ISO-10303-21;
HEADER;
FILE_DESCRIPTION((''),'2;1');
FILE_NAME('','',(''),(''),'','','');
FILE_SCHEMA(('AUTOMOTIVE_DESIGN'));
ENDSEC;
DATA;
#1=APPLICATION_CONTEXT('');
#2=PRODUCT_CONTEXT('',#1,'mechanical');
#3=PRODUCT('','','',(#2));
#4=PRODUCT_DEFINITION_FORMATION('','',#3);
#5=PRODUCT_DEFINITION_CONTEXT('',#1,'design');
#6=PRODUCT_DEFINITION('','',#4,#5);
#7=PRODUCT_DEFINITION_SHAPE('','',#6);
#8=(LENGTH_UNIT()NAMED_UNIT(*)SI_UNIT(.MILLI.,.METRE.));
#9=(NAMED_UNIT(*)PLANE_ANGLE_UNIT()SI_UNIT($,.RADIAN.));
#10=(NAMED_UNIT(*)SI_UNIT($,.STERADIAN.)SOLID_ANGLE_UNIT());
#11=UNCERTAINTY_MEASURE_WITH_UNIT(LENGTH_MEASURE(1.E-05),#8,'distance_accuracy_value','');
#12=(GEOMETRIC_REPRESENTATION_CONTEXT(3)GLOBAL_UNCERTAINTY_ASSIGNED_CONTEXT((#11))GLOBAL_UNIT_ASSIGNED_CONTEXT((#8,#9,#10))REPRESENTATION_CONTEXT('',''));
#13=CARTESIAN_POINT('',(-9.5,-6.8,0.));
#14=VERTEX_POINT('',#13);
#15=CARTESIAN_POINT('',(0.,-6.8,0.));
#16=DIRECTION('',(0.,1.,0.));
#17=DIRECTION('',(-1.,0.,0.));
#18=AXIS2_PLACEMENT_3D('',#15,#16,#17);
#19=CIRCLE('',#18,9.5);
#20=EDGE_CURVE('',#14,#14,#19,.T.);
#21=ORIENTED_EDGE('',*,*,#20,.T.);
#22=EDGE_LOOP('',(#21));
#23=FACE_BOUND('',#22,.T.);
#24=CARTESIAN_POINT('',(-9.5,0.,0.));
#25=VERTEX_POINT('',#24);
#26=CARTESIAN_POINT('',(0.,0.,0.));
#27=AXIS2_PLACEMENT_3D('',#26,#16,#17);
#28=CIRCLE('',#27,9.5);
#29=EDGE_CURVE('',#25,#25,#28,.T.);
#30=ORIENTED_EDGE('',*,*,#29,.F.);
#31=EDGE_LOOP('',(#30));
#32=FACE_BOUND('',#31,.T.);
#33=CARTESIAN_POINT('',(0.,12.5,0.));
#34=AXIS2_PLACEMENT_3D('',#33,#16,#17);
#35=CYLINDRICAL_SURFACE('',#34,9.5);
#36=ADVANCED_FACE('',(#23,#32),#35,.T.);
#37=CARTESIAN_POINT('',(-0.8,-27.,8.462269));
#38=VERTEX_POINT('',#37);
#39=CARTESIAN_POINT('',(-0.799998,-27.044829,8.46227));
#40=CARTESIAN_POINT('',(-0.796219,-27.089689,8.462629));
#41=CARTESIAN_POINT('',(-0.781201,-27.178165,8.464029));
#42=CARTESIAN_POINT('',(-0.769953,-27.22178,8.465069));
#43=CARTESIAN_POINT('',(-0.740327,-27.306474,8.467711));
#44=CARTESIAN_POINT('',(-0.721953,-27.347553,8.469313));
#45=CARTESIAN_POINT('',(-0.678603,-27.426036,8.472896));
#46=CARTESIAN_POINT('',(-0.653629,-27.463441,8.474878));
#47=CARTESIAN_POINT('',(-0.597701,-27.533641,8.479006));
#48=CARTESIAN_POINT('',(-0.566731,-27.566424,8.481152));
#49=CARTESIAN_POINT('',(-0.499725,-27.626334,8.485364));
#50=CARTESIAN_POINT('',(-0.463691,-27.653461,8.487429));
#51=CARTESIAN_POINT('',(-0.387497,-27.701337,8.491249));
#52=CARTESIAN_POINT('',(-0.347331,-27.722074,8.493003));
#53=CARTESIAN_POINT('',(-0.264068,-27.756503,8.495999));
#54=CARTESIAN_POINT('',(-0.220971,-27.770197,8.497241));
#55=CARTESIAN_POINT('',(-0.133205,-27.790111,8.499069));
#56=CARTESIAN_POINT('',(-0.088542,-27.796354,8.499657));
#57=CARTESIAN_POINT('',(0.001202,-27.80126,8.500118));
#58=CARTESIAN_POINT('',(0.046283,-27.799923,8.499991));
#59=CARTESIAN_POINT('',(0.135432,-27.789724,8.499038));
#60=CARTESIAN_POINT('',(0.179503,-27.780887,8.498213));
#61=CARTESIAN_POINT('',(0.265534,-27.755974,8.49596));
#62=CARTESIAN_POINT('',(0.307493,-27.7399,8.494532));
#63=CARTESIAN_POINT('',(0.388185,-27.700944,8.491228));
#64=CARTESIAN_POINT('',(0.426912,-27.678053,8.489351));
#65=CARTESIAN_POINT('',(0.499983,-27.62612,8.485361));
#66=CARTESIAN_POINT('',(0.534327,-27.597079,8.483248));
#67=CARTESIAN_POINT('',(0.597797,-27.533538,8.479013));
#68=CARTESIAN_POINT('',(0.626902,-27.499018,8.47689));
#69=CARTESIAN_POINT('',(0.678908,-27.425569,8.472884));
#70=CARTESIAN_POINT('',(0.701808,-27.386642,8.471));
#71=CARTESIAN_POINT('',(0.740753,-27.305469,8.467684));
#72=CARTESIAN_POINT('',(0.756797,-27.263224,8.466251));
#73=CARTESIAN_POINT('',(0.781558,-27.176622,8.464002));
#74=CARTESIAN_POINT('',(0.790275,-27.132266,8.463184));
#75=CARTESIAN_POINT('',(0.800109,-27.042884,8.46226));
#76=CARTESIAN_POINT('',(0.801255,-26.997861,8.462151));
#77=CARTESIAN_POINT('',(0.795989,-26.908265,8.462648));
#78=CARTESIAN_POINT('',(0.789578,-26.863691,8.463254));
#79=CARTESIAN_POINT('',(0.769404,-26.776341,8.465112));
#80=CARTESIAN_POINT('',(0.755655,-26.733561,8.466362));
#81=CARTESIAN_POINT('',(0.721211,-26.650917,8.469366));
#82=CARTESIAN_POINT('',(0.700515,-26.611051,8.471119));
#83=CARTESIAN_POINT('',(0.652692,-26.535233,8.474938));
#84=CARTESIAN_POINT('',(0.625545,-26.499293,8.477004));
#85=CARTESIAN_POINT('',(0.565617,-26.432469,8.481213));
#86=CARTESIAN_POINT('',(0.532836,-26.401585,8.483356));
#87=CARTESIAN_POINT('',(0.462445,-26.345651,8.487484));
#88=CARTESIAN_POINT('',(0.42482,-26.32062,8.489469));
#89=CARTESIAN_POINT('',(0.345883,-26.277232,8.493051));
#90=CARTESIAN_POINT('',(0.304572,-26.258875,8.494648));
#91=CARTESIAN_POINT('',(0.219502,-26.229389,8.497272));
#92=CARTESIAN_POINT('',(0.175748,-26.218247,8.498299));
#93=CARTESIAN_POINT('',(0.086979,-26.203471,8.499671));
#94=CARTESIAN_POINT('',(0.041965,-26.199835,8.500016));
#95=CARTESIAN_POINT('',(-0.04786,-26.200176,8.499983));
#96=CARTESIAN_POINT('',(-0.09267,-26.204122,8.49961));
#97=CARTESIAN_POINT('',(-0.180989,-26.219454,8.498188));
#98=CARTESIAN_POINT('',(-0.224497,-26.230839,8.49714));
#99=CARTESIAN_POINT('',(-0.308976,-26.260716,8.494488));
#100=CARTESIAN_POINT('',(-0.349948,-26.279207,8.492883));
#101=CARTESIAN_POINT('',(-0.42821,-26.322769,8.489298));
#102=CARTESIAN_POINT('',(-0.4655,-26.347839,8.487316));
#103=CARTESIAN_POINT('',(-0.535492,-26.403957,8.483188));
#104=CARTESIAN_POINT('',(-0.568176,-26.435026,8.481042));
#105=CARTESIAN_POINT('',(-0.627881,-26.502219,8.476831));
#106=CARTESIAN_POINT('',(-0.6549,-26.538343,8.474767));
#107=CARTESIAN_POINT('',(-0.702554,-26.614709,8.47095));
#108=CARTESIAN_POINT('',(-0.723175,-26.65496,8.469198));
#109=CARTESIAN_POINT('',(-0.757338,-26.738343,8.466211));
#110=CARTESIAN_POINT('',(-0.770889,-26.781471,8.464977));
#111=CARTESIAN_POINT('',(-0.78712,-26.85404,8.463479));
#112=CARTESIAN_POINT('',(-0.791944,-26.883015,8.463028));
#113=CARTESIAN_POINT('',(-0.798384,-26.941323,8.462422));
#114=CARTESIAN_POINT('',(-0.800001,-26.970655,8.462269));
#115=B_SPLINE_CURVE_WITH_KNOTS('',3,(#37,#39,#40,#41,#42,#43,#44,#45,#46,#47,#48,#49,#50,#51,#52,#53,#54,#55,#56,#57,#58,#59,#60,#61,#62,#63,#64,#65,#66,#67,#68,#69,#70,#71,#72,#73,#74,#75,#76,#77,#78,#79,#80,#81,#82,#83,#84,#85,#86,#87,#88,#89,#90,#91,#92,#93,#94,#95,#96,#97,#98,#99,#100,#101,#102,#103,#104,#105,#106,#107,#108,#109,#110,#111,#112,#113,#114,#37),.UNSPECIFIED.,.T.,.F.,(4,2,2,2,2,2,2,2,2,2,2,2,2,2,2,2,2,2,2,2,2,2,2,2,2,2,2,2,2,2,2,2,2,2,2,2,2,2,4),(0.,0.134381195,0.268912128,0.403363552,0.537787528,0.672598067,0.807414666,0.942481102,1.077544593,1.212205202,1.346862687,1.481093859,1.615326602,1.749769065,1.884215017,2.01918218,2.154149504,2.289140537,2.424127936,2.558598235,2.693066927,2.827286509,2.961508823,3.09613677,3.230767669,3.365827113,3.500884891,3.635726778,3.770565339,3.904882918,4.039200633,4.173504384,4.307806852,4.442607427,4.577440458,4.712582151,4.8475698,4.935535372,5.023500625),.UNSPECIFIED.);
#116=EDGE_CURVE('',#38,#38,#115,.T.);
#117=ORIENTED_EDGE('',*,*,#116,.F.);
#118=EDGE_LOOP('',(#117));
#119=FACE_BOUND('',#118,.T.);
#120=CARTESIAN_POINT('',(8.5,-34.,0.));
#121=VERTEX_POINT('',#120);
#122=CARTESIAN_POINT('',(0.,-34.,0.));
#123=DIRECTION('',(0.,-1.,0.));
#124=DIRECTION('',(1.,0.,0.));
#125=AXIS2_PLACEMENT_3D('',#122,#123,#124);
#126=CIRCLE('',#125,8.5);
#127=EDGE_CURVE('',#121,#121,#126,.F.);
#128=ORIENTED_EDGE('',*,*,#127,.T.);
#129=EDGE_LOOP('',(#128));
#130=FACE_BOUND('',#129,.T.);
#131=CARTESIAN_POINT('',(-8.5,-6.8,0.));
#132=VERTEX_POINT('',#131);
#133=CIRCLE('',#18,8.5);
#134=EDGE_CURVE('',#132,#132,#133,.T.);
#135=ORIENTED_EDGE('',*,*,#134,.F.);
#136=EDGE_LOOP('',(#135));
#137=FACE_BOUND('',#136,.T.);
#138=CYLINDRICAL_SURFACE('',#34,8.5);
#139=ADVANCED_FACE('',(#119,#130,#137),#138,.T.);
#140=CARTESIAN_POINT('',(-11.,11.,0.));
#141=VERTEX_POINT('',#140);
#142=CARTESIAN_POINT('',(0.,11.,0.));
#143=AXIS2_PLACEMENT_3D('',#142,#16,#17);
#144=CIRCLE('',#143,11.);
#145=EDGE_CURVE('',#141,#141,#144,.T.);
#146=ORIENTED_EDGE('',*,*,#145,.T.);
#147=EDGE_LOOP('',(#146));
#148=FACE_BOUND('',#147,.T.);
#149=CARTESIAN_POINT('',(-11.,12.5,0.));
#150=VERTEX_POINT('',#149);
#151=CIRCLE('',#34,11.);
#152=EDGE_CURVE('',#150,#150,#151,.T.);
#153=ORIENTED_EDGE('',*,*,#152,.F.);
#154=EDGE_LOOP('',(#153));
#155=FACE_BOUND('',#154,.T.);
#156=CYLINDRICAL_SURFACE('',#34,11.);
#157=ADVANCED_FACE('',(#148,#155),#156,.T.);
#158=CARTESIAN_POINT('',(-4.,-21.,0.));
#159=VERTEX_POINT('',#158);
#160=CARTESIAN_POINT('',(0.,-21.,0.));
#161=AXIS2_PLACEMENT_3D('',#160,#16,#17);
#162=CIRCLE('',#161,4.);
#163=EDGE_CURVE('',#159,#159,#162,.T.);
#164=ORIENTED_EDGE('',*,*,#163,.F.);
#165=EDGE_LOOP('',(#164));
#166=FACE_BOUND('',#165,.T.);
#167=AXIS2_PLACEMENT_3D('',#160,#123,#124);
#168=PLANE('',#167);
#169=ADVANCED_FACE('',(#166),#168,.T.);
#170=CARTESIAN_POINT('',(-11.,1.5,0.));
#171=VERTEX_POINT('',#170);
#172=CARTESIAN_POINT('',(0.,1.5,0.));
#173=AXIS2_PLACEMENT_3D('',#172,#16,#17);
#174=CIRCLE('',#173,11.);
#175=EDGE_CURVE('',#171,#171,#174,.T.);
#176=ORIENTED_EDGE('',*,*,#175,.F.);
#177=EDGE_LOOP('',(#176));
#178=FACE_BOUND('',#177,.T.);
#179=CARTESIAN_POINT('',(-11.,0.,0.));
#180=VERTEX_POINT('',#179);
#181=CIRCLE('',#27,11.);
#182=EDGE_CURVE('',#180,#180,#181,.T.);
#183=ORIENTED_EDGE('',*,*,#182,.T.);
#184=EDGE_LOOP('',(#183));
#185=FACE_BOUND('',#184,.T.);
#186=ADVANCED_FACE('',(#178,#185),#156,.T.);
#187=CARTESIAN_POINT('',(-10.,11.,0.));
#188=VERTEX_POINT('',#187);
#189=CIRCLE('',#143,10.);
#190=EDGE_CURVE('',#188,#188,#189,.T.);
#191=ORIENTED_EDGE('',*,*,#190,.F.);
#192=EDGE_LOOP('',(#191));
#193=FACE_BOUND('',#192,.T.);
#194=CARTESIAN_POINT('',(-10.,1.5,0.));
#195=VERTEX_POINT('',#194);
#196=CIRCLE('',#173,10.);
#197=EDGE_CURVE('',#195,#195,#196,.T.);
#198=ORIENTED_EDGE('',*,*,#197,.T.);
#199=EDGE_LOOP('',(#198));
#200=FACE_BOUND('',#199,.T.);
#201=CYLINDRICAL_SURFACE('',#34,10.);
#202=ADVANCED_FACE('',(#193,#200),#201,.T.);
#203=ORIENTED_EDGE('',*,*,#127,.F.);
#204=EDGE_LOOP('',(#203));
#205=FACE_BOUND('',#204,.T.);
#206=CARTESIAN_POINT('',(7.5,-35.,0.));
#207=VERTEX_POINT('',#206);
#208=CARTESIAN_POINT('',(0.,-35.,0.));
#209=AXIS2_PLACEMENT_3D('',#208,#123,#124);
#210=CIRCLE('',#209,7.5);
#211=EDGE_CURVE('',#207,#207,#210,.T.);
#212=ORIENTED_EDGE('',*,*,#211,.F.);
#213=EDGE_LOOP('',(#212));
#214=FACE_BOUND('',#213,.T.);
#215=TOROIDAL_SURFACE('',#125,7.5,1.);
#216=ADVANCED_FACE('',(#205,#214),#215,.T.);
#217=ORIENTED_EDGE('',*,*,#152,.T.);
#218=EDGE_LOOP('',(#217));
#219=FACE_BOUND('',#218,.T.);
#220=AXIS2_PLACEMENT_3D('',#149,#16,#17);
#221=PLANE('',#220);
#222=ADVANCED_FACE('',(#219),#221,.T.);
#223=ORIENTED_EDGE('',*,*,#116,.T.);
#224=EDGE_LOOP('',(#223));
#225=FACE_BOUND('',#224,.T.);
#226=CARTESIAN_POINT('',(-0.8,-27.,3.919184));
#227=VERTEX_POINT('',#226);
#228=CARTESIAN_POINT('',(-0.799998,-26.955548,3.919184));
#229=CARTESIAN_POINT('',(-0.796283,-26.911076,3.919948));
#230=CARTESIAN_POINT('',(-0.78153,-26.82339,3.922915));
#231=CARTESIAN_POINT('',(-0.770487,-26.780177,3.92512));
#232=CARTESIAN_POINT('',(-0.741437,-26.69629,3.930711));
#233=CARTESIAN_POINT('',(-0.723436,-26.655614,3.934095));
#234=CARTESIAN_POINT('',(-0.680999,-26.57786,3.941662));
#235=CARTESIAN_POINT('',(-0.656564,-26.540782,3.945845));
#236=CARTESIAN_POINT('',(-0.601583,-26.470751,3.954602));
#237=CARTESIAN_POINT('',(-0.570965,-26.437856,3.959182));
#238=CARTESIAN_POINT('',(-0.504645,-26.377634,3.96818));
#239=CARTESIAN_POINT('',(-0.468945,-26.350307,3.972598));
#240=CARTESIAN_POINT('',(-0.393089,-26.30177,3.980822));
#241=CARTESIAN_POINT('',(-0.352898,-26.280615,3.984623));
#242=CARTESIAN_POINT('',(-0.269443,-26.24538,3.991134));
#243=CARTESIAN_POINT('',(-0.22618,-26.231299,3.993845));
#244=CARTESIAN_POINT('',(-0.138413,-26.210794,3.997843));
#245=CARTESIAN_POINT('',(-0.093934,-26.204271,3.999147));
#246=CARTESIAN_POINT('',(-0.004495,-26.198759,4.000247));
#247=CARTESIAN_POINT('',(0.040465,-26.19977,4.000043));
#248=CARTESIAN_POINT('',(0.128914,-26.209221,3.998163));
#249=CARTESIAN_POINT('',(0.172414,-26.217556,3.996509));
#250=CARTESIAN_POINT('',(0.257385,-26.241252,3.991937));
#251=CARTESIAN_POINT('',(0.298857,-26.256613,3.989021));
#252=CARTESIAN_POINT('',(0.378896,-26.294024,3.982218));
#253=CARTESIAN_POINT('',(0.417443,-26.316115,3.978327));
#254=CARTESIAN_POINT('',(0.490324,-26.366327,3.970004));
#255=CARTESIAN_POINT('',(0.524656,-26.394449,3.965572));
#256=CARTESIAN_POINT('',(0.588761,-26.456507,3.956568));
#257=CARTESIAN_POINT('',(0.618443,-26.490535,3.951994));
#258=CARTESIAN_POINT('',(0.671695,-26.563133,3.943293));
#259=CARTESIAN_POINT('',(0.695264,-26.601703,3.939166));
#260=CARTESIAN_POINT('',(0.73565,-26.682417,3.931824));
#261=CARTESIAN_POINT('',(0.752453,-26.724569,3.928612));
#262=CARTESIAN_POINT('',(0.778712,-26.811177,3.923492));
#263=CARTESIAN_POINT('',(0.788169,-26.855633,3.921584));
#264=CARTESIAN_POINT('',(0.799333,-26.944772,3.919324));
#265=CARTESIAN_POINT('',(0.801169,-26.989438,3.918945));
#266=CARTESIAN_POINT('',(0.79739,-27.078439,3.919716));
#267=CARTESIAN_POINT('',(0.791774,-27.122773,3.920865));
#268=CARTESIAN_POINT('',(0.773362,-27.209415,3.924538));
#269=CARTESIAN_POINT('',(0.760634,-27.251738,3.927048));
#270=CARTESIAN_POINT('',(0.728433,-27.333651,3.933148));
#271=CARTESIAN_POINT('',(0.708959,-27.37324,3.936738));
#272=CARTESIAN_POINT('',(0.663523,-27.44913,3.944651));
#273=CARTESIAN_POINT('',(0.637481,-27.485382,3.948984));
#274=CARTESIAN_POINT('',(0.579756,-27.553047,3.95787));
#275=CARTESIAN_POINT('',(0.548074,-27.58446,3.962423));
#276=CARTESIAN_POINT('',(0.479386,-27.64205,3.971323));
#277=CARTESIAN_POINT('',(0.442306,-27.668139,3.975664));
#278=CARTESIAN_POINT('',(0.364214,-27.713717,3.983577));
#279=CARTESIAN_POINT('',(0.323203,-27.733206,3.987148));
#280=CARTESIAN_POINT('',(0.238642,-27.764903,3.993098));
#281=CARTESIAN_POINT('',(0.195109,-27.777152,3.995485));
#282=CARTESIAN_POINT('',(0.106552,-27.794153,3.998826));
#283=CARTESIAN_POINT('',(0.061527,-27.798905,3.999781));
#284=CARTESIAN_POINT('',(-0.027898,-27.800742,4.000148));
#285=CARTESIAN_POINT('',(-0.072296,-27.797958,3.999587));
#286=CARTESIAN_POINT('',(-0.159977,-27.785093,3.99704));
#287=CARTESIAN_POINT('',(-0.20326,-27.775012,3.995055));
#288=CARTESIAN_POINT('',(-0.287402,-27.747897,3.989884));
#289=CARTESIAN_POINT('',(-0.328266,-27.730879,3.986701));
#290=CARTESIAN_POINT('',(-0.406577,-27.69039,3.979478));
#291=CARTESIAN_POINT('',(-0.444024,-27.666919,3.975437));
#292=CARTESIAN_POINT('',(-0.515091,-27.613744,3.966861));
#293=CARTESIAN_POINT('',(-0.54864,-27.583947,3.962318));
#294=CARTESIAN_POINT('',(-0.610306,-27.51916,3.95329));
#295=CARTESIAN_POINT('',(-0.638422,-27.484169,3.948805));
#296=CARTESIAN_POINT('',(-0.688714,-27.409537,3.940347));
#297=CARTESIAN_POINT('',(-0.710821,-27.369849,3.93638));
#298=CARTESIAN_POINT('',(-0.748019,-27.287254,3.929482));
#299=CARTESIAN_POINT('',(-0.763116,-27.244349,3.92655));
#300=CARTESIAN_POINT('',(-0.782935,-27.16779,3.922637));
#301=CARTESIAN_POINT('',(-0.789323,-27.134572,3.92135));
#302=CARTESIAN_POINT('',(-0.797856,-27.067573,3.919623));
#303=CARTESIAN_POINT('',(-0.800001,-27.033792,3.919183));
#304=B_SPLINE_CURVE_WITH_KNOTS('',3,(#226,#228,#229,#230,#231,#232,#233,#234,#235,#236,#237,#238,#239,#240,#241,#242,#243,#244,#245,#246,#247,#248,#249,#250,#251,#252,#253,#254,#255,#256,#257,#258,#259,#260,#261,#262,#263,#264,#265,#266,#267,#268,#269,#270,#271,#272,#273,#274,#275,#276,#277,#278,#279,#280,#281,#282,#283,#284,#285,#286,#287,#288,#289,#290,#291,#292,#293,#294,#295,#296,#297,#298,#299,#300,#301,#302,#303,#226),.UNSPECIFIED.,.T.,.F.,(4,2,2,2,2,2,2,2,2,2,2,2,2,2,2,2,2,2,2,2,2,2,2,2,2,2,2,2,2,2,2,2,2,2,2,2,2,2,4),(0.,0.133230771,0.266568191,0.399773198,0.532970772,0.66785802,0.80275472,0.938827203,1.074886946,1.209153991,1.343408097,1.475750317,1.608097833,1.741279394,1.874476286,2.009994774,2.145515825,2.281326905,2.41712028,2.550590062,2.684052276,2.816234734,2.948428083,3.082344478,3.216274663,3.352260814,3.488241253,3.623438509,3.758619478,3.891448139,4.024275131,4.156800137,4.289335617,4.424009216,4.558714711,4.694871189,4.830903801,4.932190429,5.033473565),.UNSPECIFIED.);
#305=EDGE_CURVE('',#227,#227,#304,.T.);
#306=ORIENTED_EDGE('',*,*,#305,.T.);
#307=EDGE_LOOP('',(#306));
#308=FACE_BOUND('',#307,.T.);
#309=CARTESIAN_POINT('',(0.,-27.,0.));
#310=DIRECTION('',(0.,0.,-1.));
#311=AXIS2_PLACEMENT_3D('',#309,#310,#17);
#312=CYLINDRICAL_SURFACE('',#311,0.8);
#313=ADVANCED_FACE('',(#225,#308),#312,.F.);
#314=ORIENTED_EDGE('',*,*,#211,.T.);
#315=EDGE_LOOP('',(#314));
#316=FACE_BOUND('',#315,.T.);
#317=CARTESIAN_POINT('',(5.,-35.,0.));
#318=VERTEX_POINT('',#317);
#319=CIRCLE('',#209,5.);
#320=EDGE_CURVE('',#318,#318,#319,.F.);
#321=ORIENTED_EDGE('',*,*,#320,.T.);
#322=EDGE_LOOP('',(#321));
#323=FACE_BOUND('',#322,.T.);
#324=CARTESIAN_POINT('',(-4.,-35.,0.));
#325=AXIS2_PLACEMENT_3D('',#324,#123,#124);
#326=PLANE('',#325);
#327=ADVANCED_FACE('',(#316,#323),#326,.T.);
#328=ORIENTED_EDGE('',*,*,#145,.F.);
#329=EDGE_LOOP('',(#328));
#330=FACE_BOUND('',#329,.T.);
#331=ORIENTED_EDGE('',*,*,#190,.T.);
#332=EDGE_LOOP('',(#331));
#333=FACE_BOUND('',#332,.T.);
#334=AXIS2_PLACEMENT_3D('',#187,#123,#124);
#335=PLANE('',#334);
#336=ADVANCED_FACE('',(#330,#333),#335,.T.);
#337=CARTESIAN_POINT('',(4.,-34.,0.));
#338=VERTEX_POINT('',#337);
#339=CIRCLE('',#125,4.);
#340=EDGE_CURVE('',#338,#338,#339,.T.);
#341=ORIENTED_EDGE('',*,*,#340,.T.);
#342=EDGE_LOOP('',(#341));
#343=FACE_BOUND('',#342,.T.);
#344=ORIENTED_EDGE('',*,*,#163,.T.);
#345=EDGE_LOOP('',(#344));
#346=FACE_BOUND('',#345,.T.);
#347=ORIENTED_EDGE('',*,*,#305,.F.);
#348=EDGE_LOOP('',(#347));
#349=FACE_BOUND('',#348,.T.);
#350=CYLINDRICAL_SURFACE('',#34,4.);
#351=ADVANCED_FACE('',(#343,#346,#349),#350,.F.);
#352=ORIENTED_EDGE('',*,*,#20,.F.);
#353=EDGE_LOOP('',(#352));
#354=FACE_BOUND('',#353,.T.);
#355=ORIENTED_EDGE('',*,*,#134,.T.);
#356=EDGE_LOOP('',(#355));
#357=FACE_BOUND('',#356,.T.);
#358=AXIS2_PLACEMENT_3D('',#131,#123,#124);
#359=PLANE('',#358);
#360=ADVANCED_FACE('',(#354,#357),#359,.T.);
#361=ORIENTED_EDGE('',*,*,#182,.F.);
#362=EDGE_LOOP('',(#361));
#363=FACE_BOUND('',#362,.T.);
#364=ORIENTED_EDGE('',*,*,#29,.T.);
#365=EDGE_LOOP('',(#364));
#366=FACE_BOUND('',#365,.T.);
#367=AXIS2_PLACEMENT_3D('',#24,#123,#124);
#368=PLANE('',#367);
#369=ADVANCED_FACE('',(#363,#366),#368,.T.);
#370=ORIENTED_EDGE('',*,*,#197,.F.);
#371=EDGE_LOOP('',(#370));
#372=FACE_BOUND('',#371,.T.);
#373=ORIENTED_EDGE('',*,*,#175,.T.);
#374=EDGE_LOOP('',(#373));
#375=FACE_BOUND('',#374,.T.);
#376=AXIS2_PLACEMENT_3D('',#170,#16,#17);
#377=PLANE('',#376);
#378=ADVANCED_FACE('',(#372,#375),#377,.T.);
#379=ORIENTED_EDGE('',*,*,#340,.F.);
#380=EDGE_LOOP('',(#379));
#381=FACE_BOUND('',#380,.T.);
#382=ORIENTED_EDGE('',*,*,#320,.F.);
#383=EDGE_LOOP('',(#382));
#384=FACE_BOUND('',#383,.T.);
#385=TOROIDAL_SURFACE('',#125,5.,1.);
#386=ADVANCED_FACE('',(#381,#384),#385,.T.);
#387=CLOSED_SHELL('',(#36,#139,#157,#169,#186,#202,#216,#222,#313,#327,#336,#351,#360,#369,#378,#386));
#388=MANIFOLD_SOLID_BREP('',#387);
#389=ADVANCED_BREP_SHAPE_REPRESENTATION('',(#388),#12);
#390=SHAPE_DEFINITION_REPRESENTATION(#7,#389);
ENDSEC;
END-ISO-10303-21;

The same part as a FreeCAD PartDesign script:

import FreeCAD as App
import Part
import Sketcher
from FreeCAD import Vector


def edges_at(feature, points):
    """Names of the edges that pass closest to the given points."""
    edges = feature.Shape.Edges
    near = lambda p: min(range(len(edges)), key=lambda i: edges[i].distToShape(Part.Vertex(*p))[0])
    return sorted({f"Edge{near(p) + 1}" for p in points})


def add_polygon(sketch, points):
    """Adds a closed chain of lines whose ends are joined by coincident constraints."""
    first, n = sketch.GeometryCount, len(points)
    for a, b in zip(points, points[1:] + points[:1]):
        sketch.addGeometry(Part.LineSegment(App.Vector(*a, 0), App.Vector(*b, 0)), False)
    for i in range(n):
        sketch.addConstraint(Sketcher.Constraint("Coincident", first + i, 2, first + (i + 1) % n, 1))

doc = App.newDocument("Part")
body = doc.addObject("PartDesign::Body", "Body")

sketch1 = doc.addObject("Sketcher::SketchObject", "Sketch")
body.addObject(sketch1)
sketch1.AttachmentSupport = (doc.XY_Plane, [""])
sketch1.MapMode = "FlatFace"
add_polygon(sketch1, [(-8.5, -6.8), (-8.5, -35), (-4, -35), (-4, -21), (0, -21), (0, 12.5), (-11, 12.5), (-11, 11), (-10, 11), (-10, 1.5), (-11, 1.5), (-11, 0), (-9.5, 0), (-9.5, -6.8)])
sketch1.addConstraint(Sketcher.Constraint("Vertical", 0))
sketch1.addConstraint(Sketcher.Constraint("Horizontal", 1))
sketch1.addConstraint(Sketcher.Constraint("Vertical", 2))
sketch1.addConstraint(Sketcher.Constraint("Horizontal", 3))
sketch1.addConstraint(Sketcher.Constraint("Vertical", 4))
sketch1.addConstraint(Sketcher.Constraint("Horizontal", 5))
sketch1.addConstraint(Sketcher.Constraint("Vertical", 6))
sketch1.addConstraint(Sketcher.Constraint("Horizontal", 7))
sketch1.addConstraint(Sketcher.Constraint("Vertical", 8))
sketch1.addConstraint(Sketcher.Constraint("Horizontal", 9))
sketch1.addConstraint(Sketcher.Constraint("Vertical", 10))
sketch1.addConstraint(Sketcher.Constraint("Horizontal", 11))
sketch1.addConstraint(Sketcher.Constraint("Vertical", 12))
sketch1.addConstraint(Sketcher.Constraint("Horizontal", 13))
sketch1.addConstraint(Sketcher.Constraint("PointOnObject", 3, 2, -2))
sketch1.addConstraint(Sketcher.Constraint("PointOnObject", 10, 2, -1))
sketch1.addConstraint(Sketcher.Constraint("Vertical", 6, 2, 9, 2))
sketch1.addConstraint(Sketcher.Constraint("Equal", 9, 13))
sketch1.addConstraint(Sketcher.Constraint("Equal", 11, 6))
sketch1.addConstraint(Sketcher.Constraint("Equal", 6, 10))
sketch1.addConstraint(Sketcher.Constraint("DistanceX", 3, 1, 3, 2, 4.0))
sketch1.addConstraint(Sketcher.Constraint("DistanceX", 5, 2, 5, 1, 11.0))
sketch1.addConstraint(Sketcher.Constraint("DistanceX", 7, 1, 7, 2, 1.0))
sketch1.addConstraint(Sketcher.Constraint("DistanceY", 2, 1, 2, 2, 14.0))
sketch1.addConstraint(Sketcher.Constraint("DistanceX", 1, 1, 1, 2, 4.5))
sketch1.addConstraint(Sketcher.Constraint("DistanceY", 0, 2, 0, 1, 28.2))
sketch1.addConstraint(Sketcher.Constraint("DistanceY", 4, 1, 4, 2, 33.5))
sketch1.addConstraint(Sketcher.Constraint("DistanceY", 8, 2, 8, 1, 9.5))
revolution = doc.addObject("PartDesign::Revolution", "Revolution")
body.addObject(revolution)
revolution.Profile = sketch1
revolution.ReferenceAxis = (sketch1, ["V_Axis"])
revolution.Angle = 360
doc.recompute()

fillet = doc.addObject("PartDesign::Fillet", "Fillet")
body.addObject(fillet)
fillet.Base = (revolution, edges_at(revolution, [(8.5, -35, 0), (4, -35, 0)]))
fillet.Radius = 1

sketch2 = doc.addObject("Sketcher::SketchObject", "Sketch001")
body.addObject(sketch2)
sketch2.AttachmentSupport = (doc.YZ_Plane, [""])
sketch2.MapMode = "FlatFace"
add_polygon(sketch2, [(-27, 8.5), (-27, 0), (-26.2, 0), (-26.2, 8.5)])
sketch2.addGeometry(Part.LineSegment(Vector(-27, 0, 0), Vector(-27, 8.5, 0)), True)
sketch2.addConstraint(Sketcher.Constraint("Vertical", 0))
sketch2.addConstraint(Sketcher.Constraint("Horizontal", 1))
sketch2.addConstraint(Sketcher.Constraint("Vertical", 2))
sketch2.addConstraint(Sketcher.Constraint("Horizontal", 3))
sketch2.addConstraint(Sketcher.Constraint("Vertical", 4))
sketch2.addConstraint(Sketcher.Constraint("Coincident", 4, 1, 0, 2))
sketch2.addConstraint(Sketcher.Constraint("PointOnObject", 0, 2, -1))
sketch2.addConstraint(Sketcher.Constraint("Horizontal", 2, 2, 4, 2))
sketch2.addConstraint(Sketcher.Constraint("DistanceX", 1, 1, 1, 2, 0.8))
sketch2.addConstraint(Sketcher.Constraint("DistanceY", 0, 2, 0, 1, 8.5))
sketch2.addConstraint(Sketcher.Constraint("DistanceX", 0, 2, -1, 1, 27.0))
groove = doc.addObject("PartDesign::Groove", "Groove")
body.addObject(groove)
groove.Profile = sketch2
groove.ReferenceAxis = (sketch2, ["Axis0"])
groove.Angle = 360

doc.recompute()
